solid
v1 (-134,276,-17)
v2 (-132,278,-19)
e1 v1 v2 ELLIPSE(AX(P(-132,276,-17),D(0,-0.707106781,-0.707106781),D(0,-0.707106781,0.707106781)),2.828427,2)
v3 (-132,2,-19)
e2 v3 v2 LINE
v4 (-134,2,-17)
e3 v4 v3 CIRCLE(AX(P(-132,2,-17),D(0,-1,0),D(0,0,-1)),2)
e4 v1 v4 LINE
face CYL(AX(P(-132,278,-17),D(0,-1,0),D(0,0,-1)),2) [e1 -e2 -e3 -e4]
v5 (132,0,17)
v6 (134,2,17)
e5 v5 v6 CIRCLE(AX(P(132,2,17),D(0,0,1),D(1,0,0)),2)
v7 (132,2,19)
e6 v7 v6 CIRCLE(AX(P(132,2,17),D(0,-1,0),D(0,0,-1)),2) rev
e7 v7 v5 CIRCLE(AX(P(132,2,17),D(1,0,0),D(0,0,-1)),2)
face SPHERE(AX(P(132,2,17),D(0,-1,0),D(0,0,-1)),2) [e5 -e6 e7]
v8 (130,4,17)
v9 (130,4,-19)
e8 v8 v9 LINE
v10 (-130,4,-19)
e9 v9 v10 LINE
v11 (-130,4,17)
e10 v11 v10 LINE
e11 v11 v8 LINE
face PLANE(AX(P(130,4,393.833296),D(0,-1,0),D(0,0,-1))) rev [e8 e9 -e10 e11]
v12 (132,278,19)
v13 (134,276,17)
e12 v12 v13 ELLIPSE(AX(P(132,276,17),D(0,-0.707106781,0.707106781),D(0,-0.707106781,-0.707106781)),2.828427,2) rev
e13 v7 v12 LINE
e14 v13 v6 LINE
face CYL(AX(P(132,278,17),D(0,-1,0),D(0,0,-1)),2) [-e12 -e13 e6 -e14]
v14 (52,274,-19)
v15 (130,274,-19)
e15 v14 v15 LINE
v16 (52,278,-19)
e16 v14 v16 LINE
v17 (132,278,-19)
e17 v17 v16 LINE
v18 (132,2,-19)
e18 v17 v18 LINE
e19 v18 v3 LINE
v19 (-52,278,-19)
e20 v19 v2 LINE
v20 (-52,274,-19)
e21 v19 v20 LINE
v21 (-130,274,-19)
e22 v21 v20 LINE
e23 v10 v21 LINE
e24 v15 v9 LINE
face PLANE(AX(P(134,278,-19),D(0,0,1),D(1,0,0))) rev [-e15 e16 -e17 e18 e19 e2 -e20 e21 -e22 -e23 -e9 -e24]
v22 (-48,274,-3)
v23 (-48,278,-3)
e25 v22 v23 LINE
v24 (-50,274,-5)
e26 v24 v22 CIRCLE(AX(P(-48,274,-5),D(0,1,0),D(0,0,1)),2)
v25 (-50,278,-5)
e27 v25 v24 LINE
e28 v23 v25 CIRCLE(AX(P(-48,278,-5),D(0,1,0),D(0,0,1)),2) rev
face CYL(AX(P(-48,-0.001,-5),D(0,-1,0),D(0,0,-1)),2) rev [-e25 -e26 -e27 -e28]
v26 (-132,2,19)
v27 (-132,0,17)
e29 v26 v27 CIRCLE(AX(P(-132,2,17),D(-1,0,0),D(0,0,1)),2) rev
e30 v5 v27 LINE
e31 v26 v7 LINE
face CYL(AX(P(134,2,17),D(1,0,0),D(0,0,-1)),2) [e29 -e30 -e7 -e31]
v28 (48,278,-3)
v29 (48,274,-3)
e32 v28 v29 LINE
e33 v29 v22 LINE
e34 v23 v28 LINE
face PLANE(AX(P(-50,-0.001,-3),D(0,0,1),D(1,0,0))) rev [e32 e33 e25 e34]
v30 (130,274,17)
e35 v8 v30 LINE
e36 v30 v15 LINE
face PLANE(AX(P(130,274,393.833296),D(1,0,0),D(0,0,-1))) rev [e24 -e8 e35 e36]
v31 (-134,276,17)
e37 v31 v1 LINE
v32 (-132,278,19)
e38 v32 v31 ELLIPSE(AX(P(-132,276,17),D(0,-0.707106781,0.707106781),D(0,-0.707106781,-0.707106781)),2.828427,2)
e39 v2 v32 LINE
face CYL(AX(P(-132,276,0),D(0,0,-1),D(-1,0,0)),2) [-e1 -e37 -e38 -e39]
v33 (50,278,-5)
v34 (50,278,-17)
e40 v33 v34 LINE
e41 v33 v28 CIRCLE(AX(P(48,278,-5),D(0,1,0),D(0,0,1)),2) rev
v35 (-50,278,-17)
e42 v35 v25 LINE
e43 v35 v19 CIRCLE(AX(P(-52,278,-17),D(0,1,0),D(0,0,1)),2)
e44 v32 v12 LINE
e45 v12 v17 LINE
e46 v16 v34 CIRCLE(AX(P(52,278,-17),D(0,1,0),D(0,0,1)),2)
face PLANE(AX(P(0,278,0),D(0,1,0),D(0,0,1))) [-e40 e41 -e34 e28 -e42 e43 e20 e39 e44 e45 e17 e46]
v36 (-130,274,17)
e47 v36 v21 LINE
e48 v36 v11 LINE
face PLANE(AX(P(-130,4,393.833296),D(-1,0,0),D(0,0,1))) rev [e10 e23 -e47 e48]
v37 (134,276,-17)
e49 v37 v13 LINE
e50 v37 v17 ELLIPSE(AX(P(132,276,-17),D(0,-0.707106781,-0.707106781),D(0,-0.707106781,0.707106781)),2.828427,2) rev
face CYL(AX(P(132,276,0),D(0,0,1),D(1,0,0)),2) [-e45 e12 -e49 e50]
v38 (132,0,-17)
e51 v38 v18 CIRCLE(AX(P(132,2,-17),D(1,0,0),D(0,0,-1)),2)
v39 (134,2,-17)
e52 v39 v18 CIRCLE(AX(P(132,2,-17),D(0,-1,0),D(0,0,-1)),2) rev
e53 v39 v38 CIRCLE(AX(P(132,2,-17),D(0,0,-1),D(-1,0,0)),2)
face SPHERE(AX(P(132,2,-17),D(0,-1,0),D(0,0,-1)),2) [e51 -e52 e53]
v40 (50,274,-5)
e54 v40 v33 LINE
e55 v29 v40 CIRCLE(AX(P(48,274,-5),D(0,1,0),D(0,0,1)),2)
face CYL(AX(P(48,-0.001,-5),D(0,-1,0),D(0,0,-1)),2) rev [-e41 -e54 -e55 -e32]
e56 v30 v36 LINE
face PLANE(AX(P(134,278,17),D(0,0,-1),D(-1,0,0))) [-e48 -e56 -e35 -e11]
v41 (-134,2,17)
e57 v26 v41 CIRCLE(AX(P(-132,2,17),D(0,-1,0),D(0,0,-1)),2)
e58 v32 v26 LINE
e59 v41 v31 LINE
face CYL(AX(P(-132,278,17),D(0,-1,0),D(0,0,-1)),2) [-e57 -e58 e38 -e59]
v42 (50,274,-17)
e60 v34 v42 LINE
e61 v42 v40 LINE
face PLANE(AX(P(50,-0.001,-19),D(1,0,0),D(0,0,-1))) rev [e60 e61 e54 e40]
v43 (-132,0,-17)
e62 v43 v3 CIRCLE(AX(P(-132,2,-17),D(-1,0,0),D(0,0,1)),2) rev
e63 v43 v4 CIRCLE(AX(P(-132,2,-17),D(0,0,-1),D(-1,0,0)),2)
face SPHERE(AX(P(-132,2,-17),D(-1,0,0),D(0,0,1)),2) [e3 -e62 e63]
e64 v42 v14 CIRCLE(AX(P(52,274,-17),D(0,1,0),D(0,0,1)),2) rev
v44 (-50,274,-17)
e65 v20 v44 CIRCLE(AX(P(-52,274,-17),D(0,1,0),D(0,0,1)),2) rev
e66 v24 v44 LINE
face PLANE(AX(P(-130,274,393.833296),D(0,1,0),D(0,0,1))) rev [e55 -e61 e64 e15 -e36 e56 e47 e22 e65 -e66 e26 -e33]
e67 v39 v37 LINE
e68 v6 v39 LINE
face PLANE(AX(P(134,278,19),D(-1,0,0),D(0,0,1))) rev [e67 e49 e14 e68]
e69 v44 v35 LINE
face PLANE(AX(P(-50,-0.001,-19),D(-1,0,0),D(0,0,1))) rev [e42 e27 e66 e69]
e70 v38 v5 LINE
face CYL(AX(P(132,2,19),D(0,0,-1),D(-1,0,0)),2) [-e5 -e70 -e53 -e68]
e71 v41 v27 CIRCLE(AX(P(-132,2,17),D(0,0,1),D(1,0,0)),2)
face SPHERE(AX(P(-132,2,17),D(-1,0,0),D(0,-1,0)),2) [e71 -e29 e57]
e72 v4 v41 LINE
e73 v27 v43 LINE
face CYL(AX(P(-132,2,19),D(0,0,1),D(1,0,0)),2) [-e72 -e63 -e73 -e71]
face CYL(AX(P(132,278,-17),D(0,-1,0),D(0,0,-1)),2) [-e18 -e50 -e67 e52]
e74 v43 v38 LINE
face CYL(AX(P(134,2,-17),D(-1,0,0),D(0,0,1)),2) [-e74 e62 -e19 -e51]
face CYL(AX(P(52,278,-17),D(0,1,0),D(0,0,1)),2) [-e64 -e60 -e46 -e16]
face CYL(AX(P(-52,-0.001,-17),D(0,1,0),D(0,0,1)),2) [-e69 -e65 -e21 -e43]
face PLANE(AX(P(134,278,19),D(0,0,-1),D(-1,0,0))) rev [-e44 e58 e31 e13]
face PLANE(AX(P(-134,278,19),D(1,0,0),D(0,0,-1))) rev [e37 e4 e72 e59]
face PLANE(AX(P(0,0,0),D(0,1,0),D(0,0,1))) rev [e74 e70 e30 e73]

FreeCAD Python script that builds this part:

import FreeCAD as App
import Part
import Sketcher

V = App.Vector
Q = App.Units.Quantity


def edges_at(feature, points):
    """Names of the edges that pass closest to the given points."""
    edges = feature.Shape.Edges
    near = lambda p: min(range(len(edges)), key=lambda i: edges[i].distToShape(Part.Vertex(*p))[0])
    return sorted({f"Edge{near(p) + 1}" for p in points})

doc = App.newDocument("Part")
params = doc.addObject("Spreadsheet::Sheet", "Params")
for row, (alias, value) in enumerate([
    ("sketch1_width", "268 mm"),
    ("sketch1_height", "38 mm"),
    ("pad1_length", "278 mm"),
    ("sketch2_width", "260 mm"),
    ("sketch2_height", "270 mm"),
    ("pocket1_length", "36 mm"),
    ("sketch3_width", "100 mm"),
    ("sketch3_height", "16 mm"),
    ("fillet_radius", "2 mm"),
], start=1):
    params.set(f"A{row}", alias)
    params.set(f"B{row}", "=" + value)
    params.setAlias(f"B{row}", alias)

body = doc.addObject("PartDesign::Body", "Body")

sketch1 = body.newObject("Sketcher::SketchObject", "Sketch")
sketch1.AttachmentSupport = (doc.getObject("XZ_Plane"), [""])
sketch1.MapMode = "FlatFace"
sketch1.addGeometry([
    Part.LineSegment(V(-134, -19, 0), V(-134, 19, 0)),
    Part.LineSegment(V(-134, 19, 0), V(134, 19, 0)),
    Part.LineSegment(V(134, 19, 0), V(134, -19, 0)),
    Part.LineSegment(V(134, -19, 0), V(-134, -19, 0)),
], False)
sketch1.addConstraint([
    Sketcher.Constraint("Coincident", 0, 2, 1, 1),
    Sketcher.Constraint("Coincident", 1, 2, 2, 1),
    Sketcher.Constraint("Coincident", 2, 2, 3, 1),
    Sketcher.Constraint("Coincident", 3, 2, 0, 1),
    Sketcher.Constraint("Vertical", 0),
    Sketcher.Constraint("Horizontal", 1),
    Sketcher.Constraint("Vertical", 2),
    Sketcher.Constraint("Horizontal", 3),
    Sketcher.Constraint("Symmetric", 0, 2, 2, 2, -1, 1),
    Sketcher.Constraint("DistanceX", 1, 1, 1, 2, Q("268 mm")),
    Sketcher.Constraint("DistanceY", 0, 1, 0, 2, Q("38 mm")),
])
sketch1.setExpression("Constraints[9]", "Params.sketch1_width")
sketch1.setExpression("Constraints[10]", "Params.sketch1_height")
pad1 = body.newObject("PartDesign::Pad", "Pad")
pad1.Profile = sketch1
pad1.setExpression("Length", "Params.pad1_length")
pad1.Reversed = True

sketch2 = body.newObject("Sketcher::SketchObject", "Sketch001")
sketch2.AttachmentSupport = (doc.getObject("XY_Plane"), [""])
sketch2.MapMode = "FlatFace"
sketch2.AttachmentOffset = App.Placement(V(0, 0, -19), App.Rotation())
sketch2.addGeometry([
    Part.LineSegment(V(130, 274, 0), V(130, 4, 0)),
    Part.LineSegment(V(130, 4, 0), V(-130, 4, 0)),
    Part.LineSegment(V(-130, 4, 0), V(-130, 274, 0)),
    Part.LineSegment(V(-130, 274, 0), V(130, 274, 0)),
], False)
sketch2.addConstraint([
    Sketcher.Constraint("Coincident", 0, 2, 1, 1),
    Sketcher.Constraint("Coincident", 1, 2, 2, 1),
    Sketcher.Constraint("Coincident", 2, 2, 3, 1),
    Sketcher.Constraint("Coincident", 3, 2, 0, 1),
    Sketcher.Constraint("Vertical", 0),
    Sketcher.Constraint("Horizontal", 1),
    Sketcher.Constraint("Vertical", 2),
    Sketcher.Constraint("Horizontal", 3),
    Sketcher.Constraint("DistanceX", 1, 2, 1, 1, Q("260 mm")),
    Sketcher.Constraint("DistanceY", 0, 2, 0, 1, Q("270 mm")),
    Sketcher.Constraint("DistanceX", -1, 1, 0, 2, Q("130 mm")),
    Sketcher.Constraint("DistanceY", -1, 1, 0, 2, Q("4 mm")),
])
sketch2.setExpression("Constraints[8]", "Params.sketch2_width")
sketch2.setExpression("Constraints[9]", "Params.sketch2_height")
pocket1 = body.newObject("PartDesign::Pocket", "Pocket")
pocket1.Profile = sketch2
pocket1.setExpression("Length", "Params.pocket1_length")
pocket1.Reversed = True

sketch3 = body.newObject("Sketcher::SketchObject", "Sketch002")
sketch3.AttachmentSupport = (doc.getObject("XZ_Plane"), [""])
sketch3.MapMode = "FlatFace"
sketch3.AttachmentOffset = App.Placement(V(0, 0, -278), App.Rotation())
sketch3.addGeometry([
    Part.LineSegment(V(-50, -19, 0), V(-50, -3, 0)),
    Part.LineSegment(V(-50, -3, 0), V(50, -3, 0)),
    Part.LineSegment(V(50, -3, 0), V(50, -19, 0)),
    Part.LineSegment(V(50, -19, 0), V(-50, -19, 0)),
], False)
sketch3.addConstraint([
    Sketcher.Constraint("Coincident", 0, 2, 1, 1),
    Sketcher.Constraint("Coincident", 1, 2, 2, 1),
    Sketcher.Constraint("Coincident", 2, 2, 3, 1),
    Sketcher.Constraint("Coincident", 3, 2, 0, 1),
    Sketcher.Constraint("Vertical", 0),
    Sketcher.Constraint("Horizontal", 1),
    Sketcher.Constraint("Vertical", 2),
    Sketcher.Constraint("Horizontal", 3),
    Sketcher.Constraint("DistanceX", 1, 1, 1, 2, Q("100 mm")),
    Sketcher.Constraint("DistanceY", 0, 1, 0, 2, Q("16 mm")),
    Sketcher.Constraint("DistanceX", 0, 2, -1, 1, Q("50 mm")),
    Sketcher.Constraint("DistanceY", 0, 2, -1, 1, Q("3 mm")),
])
sketch3.setExpression("Constraints[8]", "Params.sketch3_width")
sketch3.setExpression("Constraints[9]", "Params.sketch3_height")
pocket2 = body.newObject("PartDesign::Pocket", "Pocket001")
pocket2.Profile = sketch3
pocket2.Type = "UpToFirst"
pocket2.Reversed = True
doc.recompute()

fillet = body.newObject("PartDesign::Fillet", "Fillet")
fillet.Base = (pocket2, edges_at(pocket2, [
    (134, 278, 0),
    (-50, 276, -3),
    (-50, 276, -19),
    (50, 276, -19),
    (50, 276, -3),
    (-134, 278, 0),
    (0, 0, -19),
    (134, 0, 0),
    (0, 0, 19),
    (-134, 0, 0),
    (-134, 139, -19),
    (134, 139, -19),
    (134, 139, 19),
    (-134, 139, 19),
]))
fillet.setExpression("Radius", "Params.fillet_radius")

doc.recompute()
